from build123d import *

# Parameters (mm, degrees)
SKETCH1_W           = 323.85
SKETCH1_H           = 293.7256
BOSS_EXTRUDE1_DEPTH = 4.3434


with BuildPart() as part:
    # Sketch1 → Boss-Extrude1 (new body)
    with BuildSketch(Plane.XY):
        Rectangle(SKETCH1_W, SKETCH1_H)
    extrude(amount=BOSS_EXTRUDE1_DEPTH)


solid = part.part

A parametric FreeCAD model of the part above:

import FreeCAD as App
import Part
import Sketcher

V = App.Vector
Q = App.Units.Quantity


def add_polygon(sketch, points):
    """Adds a closed chain of lines whose ends are joined by coincident constraints."""
    first, n = sketch.GeometryCount, len(points)
    for a, b in zip(points, points[1:] + points[:1]):
        sketch.addGeometry(Part.LineSegment(App.Vector(*a, 0), App.Vector(*b, 0)), False)
    for i in range(n):
        sketch.addConstraint(Sketcher.Constraint("Coincident", first + i, 2, first + (i + 1) % n, 1))

doc = App.newDocument("Part")
params = doc.addObject("Spreadsheet::Sheet", "Params")
for row, (alias, value) in enumerate([
    ("sketch1_width", "12.75 in"),
    ("sketch1_height", "11.564 in"),
    ("pad1_length", "0.171 in"),
], start=1):
    params.set(f"A{row}", alias)
    params.set(f"B{row}", "=" + value)
    params.setAlias(f"B{row}", alias)

body = doc.addObject("PartDesign::Body", "Body")

# Sketch on XY plane
sketch1 = body.newObject("Sketcher::SketchObject", "Sketch")
sketch1.AttachmentSupport = (doc.getObject("XY_Plane"), [""])
sketch1.MapMode = "FlatFace"
add_polygon(sketch1, [(-161.925, 146.8628), (-161.925, -146.8628), (161.925, -146.8628), (161.925, 146.8628)])  # lines 0-3
sketch1.addConstraint(Sketcher.Constraint("Vertical", 0))
sketch1.addConstraint(Sketcher.Constraint("Horizontal", 1))
sketch1.addConstraint(Sketcher.Constraint("Vertical", 2))
sketch1.addConstraint(Sketcher.Constraint("Horizontal", 3))
sketch1.addConstraint(Sketcher.Constraint("Symmetric", 0, 2, 2, 2, -1, 1))
sketch1.addConstraint(Sketcher.Constraint("DistanceX", 1, 1, 1, 2, Q("12.75 in")))
sketch1.addConstraint(Sketcher.Constraint("DistanceY", 0, 2, 0, 1, Q("11.564 in")))
sketch1.setExpression("Constraints[9]", "Params.sketch1_width")
sketch1.setExpression("Constraints[10]", "Params.sketch1_height")
pad1 = body.newObject("PartDesign::Pad", "Pad")
pad1.Profile = sketch1
pad1.setExpression("Length", "Params.pad1_length")

doc.recompute()
